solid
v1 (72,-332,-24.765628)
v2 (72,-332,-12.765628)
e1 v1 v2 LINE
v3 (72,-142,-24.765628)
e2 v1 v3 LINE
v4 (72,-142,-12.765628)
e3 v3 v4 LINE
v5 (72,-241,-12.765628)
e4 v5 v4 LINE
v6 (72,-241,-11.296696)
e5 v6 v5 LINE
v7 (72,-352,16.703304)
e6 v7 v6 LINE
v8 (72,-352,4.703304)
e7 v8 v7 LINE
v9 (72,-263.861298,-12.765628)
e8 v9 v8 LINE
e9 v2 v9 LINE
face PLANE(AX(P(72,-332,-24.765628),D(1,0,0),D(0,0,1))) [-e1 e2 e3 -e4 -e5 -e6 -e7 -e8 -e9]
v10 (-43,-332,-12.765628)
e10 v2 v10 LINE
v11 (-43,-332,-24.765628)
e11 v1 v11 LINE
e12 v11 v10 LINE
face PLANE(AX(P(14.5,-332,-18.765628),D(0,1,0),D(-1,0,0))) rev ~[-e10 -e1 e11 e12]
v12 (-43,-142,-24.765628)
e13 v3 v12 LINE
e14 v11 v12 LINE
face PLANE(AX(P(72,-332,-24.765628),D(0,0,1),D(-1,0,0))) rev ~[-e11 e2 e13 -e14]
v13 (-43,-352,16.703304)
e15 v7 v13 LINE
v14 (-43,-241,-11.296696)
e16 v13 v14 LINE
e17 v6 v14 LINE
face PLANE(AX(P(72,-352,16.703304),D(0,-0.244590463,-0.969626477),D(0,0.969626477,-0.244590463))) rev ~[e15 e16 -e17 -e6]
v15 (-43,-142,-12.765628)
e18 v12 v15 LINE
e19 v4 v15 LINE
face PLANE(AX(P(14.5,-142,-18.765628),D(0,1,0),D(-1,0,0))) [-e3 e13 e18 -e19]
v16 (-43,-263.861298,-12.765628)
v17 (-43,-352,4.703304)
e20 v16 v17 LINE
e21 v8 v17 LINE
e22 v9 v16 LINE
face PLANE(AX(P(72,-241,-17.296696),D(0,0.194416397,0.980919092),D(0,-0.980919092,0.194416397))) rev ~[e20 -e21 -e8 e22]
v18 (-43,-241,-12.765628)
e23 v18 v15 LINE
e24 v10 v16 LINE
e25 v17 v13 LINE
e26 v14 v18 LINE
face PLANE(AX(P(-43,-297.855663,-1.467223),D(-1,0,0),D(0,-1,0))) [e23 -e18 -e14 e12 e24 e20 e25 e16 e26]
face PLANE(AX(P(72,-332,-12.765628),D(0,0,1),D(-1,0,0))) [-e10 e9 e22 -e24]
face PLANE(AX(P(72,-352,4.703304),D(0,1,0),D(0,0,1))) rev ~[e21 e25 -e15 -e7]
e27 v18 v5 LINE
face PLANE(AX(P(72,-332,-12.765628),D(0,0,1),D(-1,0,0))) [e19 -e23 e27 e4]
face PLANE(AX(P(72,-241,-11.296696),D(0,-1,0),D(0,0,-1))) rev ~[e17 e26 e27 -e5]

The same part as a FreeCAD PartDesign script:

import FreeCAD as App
import Part
import Sketcher
Q = App.Units.Quantity

doc = App.newDocument("Part")
body = doc.addObject("PartDesign::Body", "Body")

# Sketch on YZ plane
sketch1 = doc.addObject("Sketcher::SketchObject", "Sketch")
body.addObject(sketch1)
sketch1.AttachmentSupport = (doc.YZ_Plane, [""])
sketch1.MapMode = "FlatFace"
sketch1.addGeometry(Part.LineSegment(App.Vector(-91, -17, 0), App.Vector(20, 5, 0)), False)
sketch1.addGeometry(Part.LineSegment(App.Vector(20, 5, 0), App.Vector(20, 17, 0)), False)
sketch1.addGeometry(Part.LineSegment(App.Vector(20, 17, 0), App.Vector(-91, -11, 0)), False)
sketch1.addGeometry(Part.LineSegment(App.Vector(-91, -11, 0), App.Vector(-91, -17, 0)), False)
sketch1.addConstraint(Sketcher.Constraint("Coincident", 0, 2, 1, 1))
sketch1.addConstraint(Sketcher.Constraint("Coincident", 1, 2, 2, 1))
sketch1.addConstraint(Sketcher.Constraint("Coincident", 2, 2, 3, 1))
sketch1.addConstraint(Sketcher.Constraint("Coincident", 3, 2, 0, 1))
sketch1.addConstraint(Sketcher.Constraint("Vertical", 1))
sketch1.addConstraint(Sketcher.Constraint("Vertical", 3))
sketch1.addConstraint(Sketcher.Constraint("DistanceY", 1, 1, 1, 2, Q("12 mm")))
sketch1.addConstraint(Sketcher.Constraint("DistanceY", 3, 2, 3, 1, Q("6 mm")))
sketch1.addConstraint(Sketcher.Constraint("DistanceX", -1, 1, 0, 2, Q("20 mm")))
sketch1.addConstraint(Sketcher.Constraint("DistanceX", 2, 2, -1, 1, Q("91 mm")))
sketch1.addConstraint(Sketcher.Constraint("DistanceY", 2, 2, 0, 2, Q("16 mm")))
sketch1.addConstraint(Sketcher.Constraint("DistanceY", -1, 1, 0, 2, Q("4.703304 mm")))
pad1 = doc.addObject("PartDesign::Pad", "Pad")
body.addObject(pad1)
pad1.Profile = sketch1
pad1.Length = 115
body2 = doc.addObject("PartDesign::Body", "Body001")

# Sketch on XZ plane
sketch2 = doc.addObject("Sketcher::SketchObject", "Sketch001")
body2.addObject(sketch2)
sketch2.AttachmentSupport = (doc.getObject("XZ_Plane001"), [""])
sketch2.MapMode = "FlatFace"
sketch2.addGeometry(Part.LineSegment(App.Vector(0, -13, 0), App.Vector(0, -25, 0)), False)
sketch2.addGeometry(Part.LineSegment(App.Vector(0, -25, 0), App.Vector(115, -25, 0)), False)
sketch2.addGeometry(Part.LineSegment(App.Vector(115, -25, 0), App.Vector(115, -13, 0)), False)
sketch2.addGeometry(Part.LineSegment(App.Vector(115, -13, 0), App.Vector(0, -13, 0)), False)
sketch2.addConstraint(Sketcher.Constraint("Coincident", 0, 2, 1, 1))
sketch2.addConstraint(Sketcher.Constraint("Coincident", 1, 2, 2, 1))
sketch2.addConstraint(Sketcher.Constraint("Coincident", 2, 2, 3, 1))
sketch2.addConstraint(Sketcher.Constraint("Coincident", 3, 2, 0, 1))
sketch2.addConstraint(Sketcher.Constraint("Vertical", 0))
sketch2.addConstraint(Sketcher.Constraint("Horizontal", 1))
sketch2.addConstraint(Sketcher.Constraint("Vertical", 2))
sketch2.addConstraint(Sketcher.Constraint("Horizontal", 3))
sketch2.addConstraint(Sketcher.Constraint("PointOnObject", 0, 2, -2))
sketch2.addConstraint(Sketcher.Constraint("DistanceX", 1, 1, 1, 2, Q("115 mm")))
sketch2.addConstraint(Sketcher.Constraint("DistanceY", 0, 2, 0, 1, Q("12 mm")))
sketch2.addConstraint(Sketcher.Constraint("DistanceY", 0, 2, -1, 1, Q("24.765628 mm")))
pad2 = doc.addObject("PartDesign::Pad", "Pad001")
body2.addObject(pad2)
pad2.Profile = sketch2
pad2.Length = 190
doc.recompute()

boolean = doc.addObject("PartDesign::Boolean", "Boolean")
body2.addObject(boolean)
boolean.Type = "Fuse"
boolean.addObjects([body])
body3 = doc.addObject("PartDesign::Body", "Body002")
doc.recompute()

body2.Placement = App.Placement(App.Vector(72, -332, 0), App.Rotation(App.Vector(0, 0, 1), 180))
boolean2 = doc.addObject("PartDesign::Boolean", "Boolean001")
body3.addObject(boolean2)
boolean2.Type = "Fuse"
boolean2.addObjects([body2])

doc.recompute()
